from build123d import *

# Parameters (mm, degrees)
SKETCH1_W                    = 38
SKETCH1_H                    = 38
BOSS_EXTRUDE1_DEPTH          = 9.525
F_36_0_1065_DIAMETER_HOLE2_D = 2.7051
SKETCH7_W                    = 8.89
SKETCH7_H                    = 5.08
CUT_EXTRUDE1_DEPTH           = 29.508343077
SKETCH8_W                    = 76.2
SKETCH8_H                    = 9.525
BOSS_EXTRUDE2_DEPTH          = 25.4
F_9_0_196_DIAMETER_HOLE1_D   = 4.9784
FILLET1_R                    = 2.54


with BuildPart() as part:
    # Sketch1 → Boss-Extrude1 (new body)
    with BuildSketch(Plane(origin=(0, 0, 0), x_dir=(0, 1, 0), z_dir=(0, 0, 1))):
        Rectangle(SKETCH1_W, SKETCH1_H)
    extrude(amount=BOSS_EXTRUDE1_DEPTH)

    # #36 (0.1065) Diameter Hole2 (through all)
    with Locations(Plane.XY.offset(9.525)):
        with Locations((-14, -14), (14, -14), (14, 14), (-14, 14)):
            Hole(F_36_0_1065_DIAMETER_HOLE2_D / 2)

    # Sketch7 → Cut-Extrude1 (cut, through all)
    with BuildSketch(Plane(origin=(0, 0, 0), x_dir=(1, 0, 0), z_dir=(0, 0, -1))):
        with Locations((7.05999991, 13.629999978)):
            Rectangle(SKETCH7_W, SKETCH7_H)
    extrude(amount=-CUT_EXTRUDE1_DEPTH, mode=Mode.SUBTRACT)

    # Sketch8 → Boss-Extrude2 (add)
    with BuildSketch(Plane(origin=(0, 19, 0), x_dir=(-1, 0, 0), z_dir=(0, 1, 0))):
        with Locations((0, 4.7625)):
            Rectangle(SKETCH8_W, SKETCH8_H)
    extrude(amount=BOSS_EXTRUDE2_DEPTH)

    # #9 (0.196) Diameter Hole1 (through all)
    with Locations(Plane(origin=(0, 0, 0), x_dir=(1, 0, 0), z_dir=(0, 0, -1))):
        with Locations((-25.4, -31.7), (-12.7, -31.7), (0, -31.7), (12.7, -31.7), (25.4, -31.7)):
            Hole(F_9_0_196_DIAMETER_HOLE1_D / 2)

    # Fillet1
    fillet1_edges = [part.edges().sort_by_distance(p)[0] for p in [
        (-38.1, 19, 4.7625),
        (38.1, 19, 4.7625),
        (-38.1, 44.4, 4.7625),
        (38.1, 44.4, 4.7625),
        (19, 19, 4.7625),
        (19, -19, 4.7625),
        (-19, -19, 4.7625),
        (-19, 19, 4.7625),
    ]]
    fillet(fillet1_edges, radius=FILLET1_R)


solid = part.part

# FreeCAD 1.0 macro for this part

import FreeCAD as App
import Part
import Sketcher
Q = App.Units.Quantity


def edges_at(feature, points):
    """Names of the edges that pass closest to the given points."""
    edges = feature.Shape.Edges
    near = lambda p: min(range(len(edges)), key=lambda i: edges[i].distToShape(Part.Vertex(*p))[0])
    return sorted({f"Edge{near(p) + 1}" for p in points})


def add_polygon(sketch, points):
    """Adds a closed chain of lines whose ends are joined by coincident constraints."""
    first, n = sketch.GeometryCount, len(points)
    for a, b in zip(points, points[1:] + points[:1]):
        sketch.addGeometry(Part.LineSegment(App.Vector(*a, 0), App.Vector(*b, 0)), False)
    for i in range(n):
        sketch.addConstraint(Sketcher.Constraint("Coincident", first + i, 2, first + (i + 1) % n, 1))

doc = App.newDocument("Part")
body = doc.addObject("PartDesign::Body", "Body")

# Sketch on XY plane
sketch1 = body.newObject("Sketcher::SketchObject", "Sketch")
sketch1.AttachmentSupport = (doc.getObject("XY_Plane"), [""])
sketch1.MapMode = "FlatFace"
add_polygon(sketch1, [(-19, -19), (19, -19), (19, 19), (-19, 19)])  # lines 0-3
sketch1.addConstraint([
    Sketcher.Constraint("Horizontal", 0),
    Sketcher.Constraint("Vertical", 1),
    Sketcher.Constraint("Horizontal", 2),
    Sketcher.Constraint("Vertical", 3),
    Sketcher.Constraint("Symmetric", 0, 2, 2, 2, -1, 1),
    Sketcher.Constraint("Equal", 2, 1),
    Sketcher.Constraint("DistanceX", 0, 1, 0, 2, Q("38 mm")),
])
pad1 = body.newObject("PartDesign::Pad", "Pad")
pad1.Profile = sketch1
pad1.Length = Q("0.375 in")

# Sketch on XY plane
sketch2 = body.newObject("Sketcher::SketchObject", "Sketch001")
sketch2.AttachmentSupport = (doc.getObject("XY_Plane"), [""])
sketch2.MapMode = "FlatFace"
sketch2.AttachmentOffset = App.Placement(App.Vector(0, 0, 0.375 * 25.4), App.Rotation())
sketch2.addGeometry([
    Part.Circle(App.Vector(-14, -14, 0), App.Vector(0, 0, 1), 1.4),
    Part.Circle(App.Vector(14, -14, 0), App.Vector(0, 0, 1), 1.4),
    Part.Circle(App.Vector(14, 14, 0), App.Vector(0, 0, 1), 1.4),
    Part.Circle(App.Vector(-14, 14, 0), App.Vector(0, 0, 1), 1.4),
], False)
sketch2.addConstraint([
    Sketcher.Constraint("Equal", 0, 1),
    Sketcher.Constraint("Equal", 1, 2),
    Sketcher.Constraint("Equal", 2, 3),
    Sketcher.Constraint("Symmetric", 0, 3, 2, 3, -1, 1),
    Sketcher.Constraint("Symmetric", 1, 3, 3, 3, -1, 1),
    Sketcher.Constraint("Symmetric", 0, 3, 1, 3, -2),
    Sketcher.Constraint("Diameter", 0, Q("0.1065 in")),
    Sketcher.Constraint("DistanceX", 0, 3, -1, 1, Q("14 mm")),
    Sketcher.Constraint("DistanceY", 0, 3, -1, 1, Q("14 mm")),
])
doc.recompute()
hole = body.newObject("PartDesign::Hole", "Hole")
hole.Profile = sketch2
hole.ThreadType = "None"
hole.Diameter = Q("0.1065 in")
hole.DepthType = "ThroughAll"

# Sketch on XY plane
sketch3 = body.newObject("Sketcher::SketchObject", "Sketch002")
sketch3.AttachmentSupport = (doc.getObject("XY_Plane"), [""])
sketch3.MapMode = "FlatFace"
add_polygon(sketch3, [(3, -16), (3, -11), (12, -11), (12, -16)])  # lines 0-3
sketch3.addConstraint([
    Sketcher.Constraint("Vertical", 0),
    Sketcher.Constraint("Horizontal", 1),
    Sketcher.Constraint("Vertical", 2),
    Sketcher.Constraint("Horizontal", 3),
    Sketcher.Constraint("DistanceY", 0, 1, 0, 2, Q("0.2 in")),
    Sketcher.Constraint("DistanceX", 1, 1, 1, 2, Q("0.35 in")),
    Sketcher.Constraint("DistanceX", -1, 1, 0, 2, Q("2.615 mm")),
    Sketcher.Constraint("DistanceY", 0, 2, -1, 1, Q("11.09 mm")),
])
pocket1 = body.newObject("PartDesign::Pocket", "Pocket")
pocket1.Profile = sketch3
pocket1.Type = "ThroughAll"
pocket1.Reversed = True

# Sketch on XZ plane
sketch4 = body.newObject("Sketcher::SketchObject", "Sketch003")
sketch4.AttachmentSupport = (doc.getObject("XZ_Plane"), [""])
sketch4.MapMode = "FlatFace"
sketch4.AttachmentOffset = App.Placement(App.Vector(0, 0, -19), App.Rotation())
add_polygon(sketch4, [(38, 10), (38, 0), (-38, 0), (-38, 10)])  # lines 0-3
sketch4.addConstraint([
    Sketcher.Constraint("Vertical", 0),
    Sketcher.Constraint("Horizontal", 1),
    Sketcher.Constraint("Vertical", 2),
    Sketcher.Constraint("Horizontal", 3),
    Sketcher.Constraint("Symmetric", 0, 2, 1, 2, -1, 1),
    Sketcher.Constraint("DistanceX", 1, 2, 1, 1, Q("3 in")),
    Sketcher.Constraint("DistanceY", 0, 2, 0, 1, Q("0.375 in")),
])
pad2 = body.newObject("PartDesign::Pad", "Pad001")
pad2.Profile = sketch4
pad2.Length = Q("1 in")
pad2.Reversed = True

# Sketch on XY plane
sketch5 = body.newObject("Sketcher::SketchObject", "Sketch004")
sketch5.AttachmentSupport = (doc.getObject("XY_Plane"), [""])
sketch5.MapMode = "FlatFace"
sketch5.addGeometry([
    Part.Circle(App.Vector(-25.4, 31.7, 0), App.Vector(0, 0, 1), 2.5),  # 0
    Part.Circle(App.Vector(-12.7, 31.7, 0), App.Vector(0, 0, 1), 2.5),  # 1
    Part.Circle(App.Vector(0, 31.7, 0), App.Vector(0, 0, 1), 2.5),  # 2
    Part.Circle(App.Vector(12.7, 31.7, 0), App.Vector(0, 0, 1), 2.5),  # 3
    Part.Circle(App.Vector(25.4, 31.7, 0), App.Vector(0, 0, 1), 2.5),  # 4
], False)
sketch5.addConstraint([
    Sketcher.Constraint("Equal", 0, 1),
    Sketcher.Constraint("Equal", 1, 2),
    Sketcher.Constraint("Equal", 2, 3),
    Sketcher.Constraint("Equal", 3, 4),
    Sketcher.Constraint("Symmetric", 1, 3, 3, 3, -2),
    Sketcher.Constraint("Symmetric", 0, 3, 4, 3, -2),
    Sketcher.Constraint("PointOnObject", 2, 3, -2),
    Sketcher.Constraint("Horizontal", 0, 3, 1, 3),
    Sketcher.Constraint("Horizontal", 1, 3, 2, 3),
    Sketcher.Constraint("Diameter", 0, Q("0.196 in")),
    Sketcher.Constraint("DistanceX", 0, 3, -1, 1, Q("1 in")),
    Sketcher.Constraint("DistanceX", 1, 3, 3, 3, Q("1 in")),
    Sketcher.Constraint("DistanceY", -1, 1, 0, 3, Q("31.7 mm")),
])
doc.recompute()
hole2 = body.newObject("PartDesign::Hole", "Hole001")
hole2.Profile = sketch5
hole2.ThreadType = "None"
hole2.Diameter = Q("0.196 in")
hole2.DepthType = "ThroughAll"
hole2.Reversed = True
doc.recompute()

fillet = body.newObject("PartDesign::Fillet", "Fillet")
fillet.Base = (hole2, edges_at(hole2, [
    (-38.1, 19, 4.763),
    (38.1, 19, 4.763),
    (-38.1, 44.4, 4.763),
    (38.1, 44.4, 4.763),
    (19, 19, 4.763),
    (19, -19, 4.763),
    (-19, -19, 4.763),
    (-19, 19, 4.763),
]))
fillet.Radius = Q("0.1 in")

doc.recompute()
